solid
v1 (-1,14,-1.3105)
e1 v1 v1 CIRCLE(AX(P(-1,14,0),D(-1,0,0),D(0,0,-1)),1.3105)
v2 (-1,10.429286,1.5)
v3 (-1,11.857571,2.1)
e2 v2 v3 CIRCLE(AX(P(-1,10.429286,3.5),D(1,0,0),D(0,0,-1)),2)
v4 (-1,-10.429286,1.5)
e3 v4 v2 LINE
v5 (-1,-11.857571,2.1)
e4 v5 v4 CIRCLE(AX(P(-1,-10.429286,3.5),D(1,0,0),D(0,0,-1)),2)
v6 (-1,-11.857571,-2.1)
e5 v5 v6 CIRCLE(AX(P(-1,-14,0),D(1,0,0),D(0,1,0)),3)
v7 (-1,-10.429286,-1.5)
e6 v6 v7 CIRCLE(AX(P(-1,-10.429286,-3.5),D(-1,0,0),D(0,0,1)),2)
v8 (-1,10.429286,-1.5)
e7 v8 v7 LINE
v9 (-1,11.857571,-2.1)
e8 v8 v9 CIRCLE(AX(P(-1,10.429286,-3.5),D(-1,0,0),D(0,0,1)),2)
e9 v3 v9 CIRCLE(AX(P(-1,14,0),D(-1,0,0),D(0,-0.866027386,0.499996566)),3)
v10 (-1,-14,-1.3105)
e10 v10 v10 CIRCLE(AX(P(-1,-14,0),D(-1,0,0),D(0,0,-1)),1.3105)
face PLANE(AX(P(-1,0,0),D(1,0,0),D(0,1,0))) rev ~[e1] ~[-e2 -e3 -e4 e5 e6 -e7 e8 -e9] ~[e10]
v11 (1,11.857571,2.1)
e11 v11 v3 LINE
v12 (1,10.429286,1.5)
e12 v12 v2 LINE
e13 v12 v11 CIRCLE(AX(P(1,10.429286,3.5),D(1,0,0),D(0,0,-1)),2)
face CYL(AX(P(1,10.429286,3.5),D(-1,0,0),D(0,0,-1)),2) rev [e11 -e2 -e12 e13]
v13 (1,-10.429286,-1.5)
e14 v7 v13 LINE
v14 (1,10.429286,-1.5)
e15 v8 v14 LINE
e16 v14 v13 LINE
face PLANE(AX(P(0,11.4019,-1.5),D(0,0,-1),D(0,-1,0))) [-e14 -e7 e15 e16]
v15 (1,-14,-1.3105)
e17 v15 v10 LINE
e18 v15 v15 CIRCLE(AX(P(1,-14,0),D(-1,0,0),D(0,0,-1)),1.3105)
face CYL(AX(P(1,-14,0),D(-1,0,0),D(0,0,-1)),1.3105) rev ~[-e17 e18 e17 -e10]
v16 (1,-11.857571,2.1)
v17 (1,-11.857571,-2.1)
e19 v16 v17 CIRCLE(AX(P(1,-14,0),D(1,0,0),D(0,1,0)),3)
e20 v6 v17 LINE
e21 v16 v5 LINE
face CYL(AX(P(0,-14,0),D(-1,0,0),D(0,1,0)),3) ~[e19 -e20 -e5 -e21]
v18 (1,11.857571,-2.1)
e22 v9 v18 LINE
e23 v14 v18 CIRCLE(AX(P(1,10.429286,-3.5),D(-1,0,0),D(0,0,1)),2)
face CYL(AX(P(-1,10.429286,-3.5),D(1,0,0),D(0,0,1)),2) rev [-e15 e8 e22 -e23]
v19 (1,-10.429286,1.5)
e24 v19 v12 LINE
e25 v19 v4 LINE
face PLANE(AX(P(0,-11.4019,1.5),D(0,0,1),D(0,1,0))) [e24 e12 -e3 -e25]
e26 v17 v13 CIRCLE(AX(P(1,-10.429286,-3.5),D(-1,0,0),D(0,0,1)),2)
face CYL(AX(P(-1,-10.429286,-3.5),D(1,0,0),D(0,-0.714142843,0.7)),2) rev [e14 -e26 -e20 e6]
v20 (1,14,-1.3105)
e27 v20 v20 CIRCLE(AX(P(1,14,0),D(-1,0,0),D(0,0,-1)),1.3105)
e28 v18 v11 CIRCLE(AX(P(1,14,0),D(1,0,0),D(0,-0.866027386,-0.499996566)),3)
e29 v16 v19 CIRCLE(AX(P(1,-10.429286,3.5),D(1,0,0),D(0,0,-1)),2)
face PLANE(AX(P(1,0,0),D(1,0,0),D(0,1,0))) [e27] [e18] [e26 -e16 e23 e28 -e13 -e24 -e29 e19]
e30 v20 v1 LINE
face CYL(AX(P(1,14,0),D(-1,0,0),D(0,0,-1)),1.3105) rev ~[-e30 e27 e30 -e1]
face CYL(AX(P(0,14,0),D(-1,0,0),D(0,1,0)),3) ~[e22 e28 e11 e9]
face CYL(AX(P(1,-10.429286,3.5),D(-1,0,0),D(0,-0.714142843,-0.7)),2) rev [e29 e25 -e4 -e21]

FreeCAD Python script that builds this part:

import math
import FreeCAD as App
import Part
import Sketcher

V = App.Vector


def edges_at(feature, points):
    """Names of the edges that pass closest to the given points."""
    edges = feature.Shape.Edges
    near = lambda p: min(range(len(edges)), key=lambda i: edges[i].distToShape(Part.Vertex(*p))[0])
    return sorted({f"Edge{near(p) + 1}" for p in points})

doc = App.newDocument("Part")
body = doc.addObject("PartDesign::Body", "Body")

# Sketch on YZ plane
sketch1 = doc.addObject("Sketcher::SketchObject", "Sketch")
body.addObject(sketch1)
sketch1.AttachmentSupport = (doc.YZ_Plane, [""])
sketch1.MapMode = "FlatFace"
sketch1.addGeometry([
    Part.ArcOfCircle(Part.Circle(V(-14, 0, 0), V(0, 0, 1), 3), math.radians(30), math.radians(330)),
    Part.LineSegment(V(-11.4, -1.5, 0), V(11.4, -1.5, 0)),
    Part.ArcOfCircle(Part.Circle(V(14, 0, 0), V(0, 0, 1), 3), math.radians(-150), math.radians(150)),
    Part.LineSegment(V(11.4, 1.5, 0), V(-11.4, 1.5, 0)),
], False)
sketch1.addConstraint([
    Sketcher.Constraint("Coincident", 0, 2, 1, 1),
    Sketcher.Constraint("Coincident", 1, 2, 2, 1),
    Sketcher.Constraint("Coincident", 2, 2, 3, 1),
    Sketcher.Constraint("Coincident", 3, 2, 0, 1),
    Sketcher.Constraint("Horizontal", 1),
    Sketcher.Constraint("Horizontal", 3),
    Sketcher.Constraint("Equal", 0, 2),
    Sketcher.Constraint("Symmetric", 0, 3, 2, 3, -1, 1),
    Sketcher.Constraint("Symmetric", 1, 2, 2, 2, -1),
    Sketcher.Constraint("Radius", 0, 3.0),
    Sketcher.Constraint("DistanceX", 0, 3, 2, 3, 28.0),
    Sketcher.Constraint("DistanceY", 1, 2, 2, 2, 3.0),
])
pad1 = doc.addObject("PartDesign::Pad", "Pad")
body.addObject(pad1)
pad1.Profile = sketch1
pad1.Length = 2
pad1.Midplane = True
doc.recompute()

fillet = doc.addObject("PartDesign::Fillet", "Fillet")
body.addObject(fillet)
fillet.Base = (pad1, edges_at(pad1, [
    (0, -11.402, 1.5),
    (0, -11.402, -1.5),
    (0, 11.402, -1.5),
    (0, 11.402, 1.5),
]))
fillet.Radius = 2

# Sketch on YZ plane
sketch2 = doc.addObject("Sketcher::SketchObject", "Sketch001")
body.addObject(sketch2)
sketch2.AttachmentSupport = (doc.YZ_Plane, [""])
sketch2.MapMode = "FlatFace"
sketch2.AttachmentOffset = App.Placement(V(0, 0, 1), App.Rotation())
sketch2.addGeometry([
    Part.Circle(V(-14, 0, 0), V(0, 0, 1), 1.3),
    Part.Circle(V(14, 0, 0), V(0, 0, 1), 1.3),
], False)
sketch2.addConstraint([
    Sketcher.Constraint("Equal", 0, 1),
    Sketcher.Constraint("Symmetric", 0, 3, 1, 3, -1, 1),
    Sketcher.Constraint("PointOnObject", 0, 3, -1),
    Sketcher.Constraint("Diameter", 0, 2.621),
    Sketcher.Constraint("DistanceX", 0, 3, -1, 1, 14.0),
])
doc.recompute()
hole = doc.addObject("PartDesign::Hole", "Hole")
body.addObject(hole)
hole.Profile = sketch2
hole.ThreadType = "None"
hole.Diameter = 2.621
hole.DepthType = "ThroughAll"

doc.recompute()
